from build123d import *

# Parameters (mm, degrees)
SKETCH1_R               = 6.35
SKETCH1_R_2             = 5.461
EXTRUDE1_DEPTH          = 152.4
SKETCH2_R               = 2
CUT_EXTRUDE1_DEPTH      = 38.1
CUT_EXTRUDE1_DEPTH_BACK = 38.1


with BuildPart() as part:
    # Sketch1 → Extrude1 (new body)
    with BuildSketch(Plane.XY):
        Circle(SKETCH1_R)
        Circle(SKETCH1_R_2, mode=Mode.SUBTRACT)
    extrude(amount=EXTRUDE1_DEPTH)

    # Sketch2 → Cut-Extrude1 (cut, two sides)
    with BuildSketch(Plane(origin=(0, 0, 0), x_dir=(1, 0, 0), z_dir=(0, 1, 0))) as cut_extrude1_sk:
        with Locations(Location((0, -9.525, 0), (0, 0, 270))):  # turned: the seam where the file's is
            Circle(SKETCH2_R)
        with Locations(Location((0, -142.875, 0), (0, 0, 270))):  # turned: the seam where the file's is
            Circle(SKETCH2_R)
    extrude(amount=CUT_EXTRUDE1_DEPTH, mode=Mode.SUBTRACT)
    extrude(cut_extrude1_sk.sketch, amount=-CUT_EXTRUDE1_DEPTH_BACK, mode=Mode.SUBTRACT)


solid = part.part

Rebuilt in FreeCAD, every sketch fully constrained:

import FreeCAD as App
import Part
import Sketcher
Q = App.Units.Quantity

doc = App.newDocument("Part")
body = doc.addObject("PartDesign::Body", "Body")

sketch1 = body.newObject("Sketcher::SketchObject", "Sketch")
sketch1.AttachmentSupport = (doc.getObject("XY_Plane"), [""])
sketch1.MapMode = "FlatFace"
sketch1.addGeometry([
    Part.Circle(App.Vector(0, 0, 0), App.Vector(0, 0, 1), 6),
    Part.Circle(App.Vector(0, 0, 0), App.Vector(0, 0, 1), 5),
], False)
sketch1.addConstraint([
    Sketcher.Constraint("Coincident", 0, 3, -1, 1),
    Sketcher.Constraint("Coincident", 1, 3, -1, 1),
    Sketcher.Constraint("Diameter", 0, Q("0.5 in")),
    Sketcher.Constraint("Diameter", 1, Q("0.43 in")),
])
pad1 = body.newObject("PartDesign::Pad", "Pad")
pad1.Profile = sketch1
pad1.Length = Q("6 in")

sketch2 = body.newObject("Sketcher::SketchObject", "Sketch001")
sketch2.AttachmentSupport = (doc.getObject("XZ_Plane"), [""])
sketch2.MapMode = "FlatFace"
sketch2.addGeometry([
    Part.Circle(App.Vector(0, 9.5, 0), App.Vector(0, 0, 1), 2),
    Part.Circle(App.Vector(0, 142.9, 0), App.Vector(0, 0, 1), 2),
], False)
sketch2.addConstraint([
    Sketcher.Constraint("Equal", 0, 1),
    Sketcher.Constraint("PointOnObject", 0, 3, -2),
    Sketcher.Constraint("PointOnObject", 1, 3, -2),
    Sketcher.Constraint("Diameter", 0, Q("4 mm")),
    Sketcher.Constraint("DistanceY", 0, 3, 1, 3, Q("5.25 in")),
    Sketcher.Constraint("DistanceY", -1, 1, 0, 3, Q("0.375 in")),
])
pocket1 = body.newObject("PartDesign::Pocket", "Pocket")
pocket1.Profile = sketch2
pocket1.Type = "ThroughAll"
pocket1.Midplane = True

doc.recompute()
